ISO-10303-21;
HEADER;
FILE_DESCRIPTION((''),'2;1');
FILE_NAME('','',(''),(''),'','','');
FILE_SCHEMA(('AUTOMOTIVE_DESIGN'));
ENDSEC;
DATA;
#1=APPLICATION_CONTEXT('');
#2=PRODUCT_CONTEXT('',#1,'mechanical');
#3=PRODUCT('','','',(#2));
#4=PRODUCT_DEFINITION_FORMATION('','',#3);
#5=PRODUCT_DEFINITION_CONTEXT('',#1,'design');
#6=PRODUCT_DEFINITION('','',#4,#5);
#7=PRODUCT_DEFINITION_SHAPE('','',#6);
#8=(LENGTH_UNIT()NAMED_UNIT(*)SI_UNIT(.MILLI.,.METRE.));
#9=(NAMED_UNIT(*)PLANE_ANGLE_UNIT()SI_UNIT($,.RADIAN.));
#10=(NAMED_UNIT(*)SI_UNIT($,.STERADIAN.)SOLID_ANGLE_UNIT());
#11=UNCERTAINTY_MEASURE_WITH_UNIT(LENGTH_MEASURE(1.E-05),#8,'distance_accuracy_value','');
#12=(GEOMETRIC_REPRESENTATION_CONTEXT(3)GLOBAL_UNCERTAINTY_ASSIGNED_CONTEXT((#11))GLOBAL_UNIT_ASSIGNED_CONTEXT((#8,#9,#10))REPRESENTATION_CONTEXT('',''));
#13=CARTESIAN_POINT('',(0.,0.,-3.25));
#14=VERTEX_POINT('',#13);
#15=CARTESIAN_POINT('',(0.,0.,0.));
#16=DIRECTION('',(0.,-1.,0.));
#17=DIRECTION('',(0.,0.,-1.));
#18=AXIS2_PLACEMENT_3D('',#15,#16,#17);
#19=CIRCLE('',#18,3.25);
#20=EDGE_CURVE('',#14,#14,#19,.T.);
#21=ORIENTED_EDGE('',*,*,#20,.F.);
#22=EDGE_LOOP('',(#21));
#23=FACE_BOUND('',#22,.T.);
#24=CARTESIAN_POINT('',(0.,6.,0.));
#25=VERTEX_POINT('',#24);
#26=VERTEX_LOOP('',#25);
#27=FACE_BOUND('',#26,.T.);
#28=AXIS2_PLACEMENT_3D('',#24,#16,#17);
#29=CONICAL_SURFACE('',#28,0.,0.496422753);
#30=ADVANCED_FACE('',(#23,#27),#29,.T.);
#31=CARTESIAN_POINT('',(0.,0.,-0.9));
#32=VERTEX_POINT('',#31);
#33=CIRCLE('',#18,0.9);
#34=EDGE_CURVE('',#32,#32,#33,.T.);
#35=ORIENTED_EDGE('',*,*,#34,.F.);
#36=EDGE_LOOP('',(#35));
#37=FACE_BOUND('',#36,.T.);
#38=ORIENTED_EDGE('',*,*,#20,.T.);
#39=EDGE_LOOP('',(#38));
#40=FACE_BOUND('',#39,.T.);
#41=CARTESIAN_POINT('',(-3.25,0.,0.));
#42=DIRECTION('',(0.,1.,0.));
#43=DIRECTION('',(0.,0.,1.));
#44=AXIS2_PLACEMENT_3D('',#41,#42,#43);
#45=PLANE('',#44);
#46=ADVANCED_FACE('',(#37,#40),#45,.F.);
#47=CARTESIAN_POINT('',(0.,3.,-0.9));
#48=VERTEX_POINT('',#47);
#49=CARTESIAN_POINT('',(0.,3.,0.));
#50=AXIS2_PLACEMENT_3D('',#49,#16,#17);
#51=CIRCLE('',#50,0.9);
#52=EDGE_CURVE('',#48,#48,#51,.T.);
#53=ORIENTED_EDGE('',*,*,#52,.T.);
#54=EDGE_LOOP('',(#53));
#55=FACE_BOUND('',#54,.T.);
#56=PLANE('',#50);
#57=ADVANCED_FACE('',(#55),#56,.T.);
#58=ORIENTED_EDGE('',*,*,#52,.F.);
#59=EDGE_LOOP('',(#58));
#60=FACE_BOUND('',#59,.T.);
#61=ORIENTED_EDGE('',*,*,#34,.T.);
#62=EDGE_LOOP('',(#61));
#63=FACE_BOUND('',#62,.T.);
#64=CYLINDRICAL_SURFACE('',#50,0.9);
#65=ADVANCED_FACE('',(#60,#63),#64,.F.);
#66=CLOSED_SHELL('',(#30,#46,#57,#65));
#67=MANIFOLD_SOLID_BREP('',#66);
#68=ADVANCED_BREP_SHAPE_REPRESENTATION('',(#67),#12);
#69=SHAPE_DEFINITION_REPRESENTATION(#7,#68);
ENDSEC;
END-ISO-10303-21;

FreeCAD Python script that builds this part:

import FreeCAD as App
import Part
import Sketcher
Q = App.Units.Quantity

doc = App.newDocument("Part")
params = doc.addObject("Spreadsheet::Sheet", "Params")
for row, (alias, value) in enumerate([
    ("sketch1_height", "6 mm"),
    ("sketch1_width", "3.25 mm"),
    ("revolution_angle", "360 deg"),
    ("sketch2_diameter", "1.8 mm"),
    ("pocket1_length", "3 mm"),
], start=1):
    params.set(f"A{row}", alias)
    params.set(f"B{row}", "=" + value)
    params.setAlias(f"B{row}", alias)

body = doc.addObject("PartDesign::Body", "Body")

# Sketch on XY plane
sketch1 = doc.addObject("Sketcher::SketchObject", "Sketch")
body.addObject(sketch1)
sketch1.AttachmentSupport = (doc.XY_Plane, [""])
sketch1.MapMode = "FlatFace"
sketch1.addGeometry(Part.LineSegment(App.Vector(0, 0, 0), App.Vector(0, 6, 0)), False)
sketch1.addGeometry(Part.LineSegment(App.Vector(0, 6, 0), App.Vector(-3.2, 0, 0)), False)
sketch1.addGeometry(Part.LineSegment(App.Vector(-3.2, 0, 0), App.Vector(0, 0, 0)), False)
sketch1.addConstraint(Sketcher.Constraint("Coincident", 0, 2, 1, 1))
sketch1.addConstraint(Sketcher.Constraint("Coincident", 1, 2, 2, 1))
sketch1.addConstraint(Sketcher.Constraint("Coincident", 2, 2, 0, 1))
sketch1.addConstraint(Sketcher.Constraint("Vertical", 0))
sketch1.addConstraint(Sketcher.Constraint("Horizontal", 2))
sketch1.addConstraint(Sketcher.Constraint("Coincident", 2, 2, -1, 1))
sketch1.addConstraint(Sketcher.Constraint("DistanceY", 0, 1, 0, 2, Q("6 mm")))
sketch1.addConstraint(Sketcher.Constraint("DistanceX", 2, 1, 2, 2, Q("3.25 mm")))
sketch1.setExpression("Constraints[6]", "Params.sketch1_height")
sketch1.setExpression("Constraints[7]", "Params.sketch1_width")
revolution = doc.addObject("PartDesign::Revolution", "Revolution")
body.addObject(revolution)
revolution.Profile = sketch1
revolution.ReferenceAxis = (sketch1, ["V_Axis"])
revolution.setExpression("Angle", "Params.revolution_angle")

# Sketch on XZ plane
sketch2 = doc.addObject("Sketcher::SketchObject", "Sketch001")
body.addObject(sketch2)
sketch2.AttachmentSupport = (doc.XZ_Plane, [""])
sketch2.MapMode = "FlatFace"
sketch2.addGeometry(Part.Circle(App.Vector(0, 0, 0), App.Vector(0, 0, 1), 0.9), False)
sketch2.addConstraint(Sketcher.Constraint("Coincident", 0, 3, -1, 1))
sketch2.addConstraint(Sketcher.Constraint("Diameter", 0, Q("1.8 mm")))
sketch2.setExpression("Constraints[1]", "Params.sketch2_diameter")
pocket1 = doc.addObject("PartDesign::Pocket", "Pocket")
body.addObject(pocket1)
pocket1.Profile = sketch2
pocket1.setExpression("Length", "Params.pocket1_length")

doc.recompute()
